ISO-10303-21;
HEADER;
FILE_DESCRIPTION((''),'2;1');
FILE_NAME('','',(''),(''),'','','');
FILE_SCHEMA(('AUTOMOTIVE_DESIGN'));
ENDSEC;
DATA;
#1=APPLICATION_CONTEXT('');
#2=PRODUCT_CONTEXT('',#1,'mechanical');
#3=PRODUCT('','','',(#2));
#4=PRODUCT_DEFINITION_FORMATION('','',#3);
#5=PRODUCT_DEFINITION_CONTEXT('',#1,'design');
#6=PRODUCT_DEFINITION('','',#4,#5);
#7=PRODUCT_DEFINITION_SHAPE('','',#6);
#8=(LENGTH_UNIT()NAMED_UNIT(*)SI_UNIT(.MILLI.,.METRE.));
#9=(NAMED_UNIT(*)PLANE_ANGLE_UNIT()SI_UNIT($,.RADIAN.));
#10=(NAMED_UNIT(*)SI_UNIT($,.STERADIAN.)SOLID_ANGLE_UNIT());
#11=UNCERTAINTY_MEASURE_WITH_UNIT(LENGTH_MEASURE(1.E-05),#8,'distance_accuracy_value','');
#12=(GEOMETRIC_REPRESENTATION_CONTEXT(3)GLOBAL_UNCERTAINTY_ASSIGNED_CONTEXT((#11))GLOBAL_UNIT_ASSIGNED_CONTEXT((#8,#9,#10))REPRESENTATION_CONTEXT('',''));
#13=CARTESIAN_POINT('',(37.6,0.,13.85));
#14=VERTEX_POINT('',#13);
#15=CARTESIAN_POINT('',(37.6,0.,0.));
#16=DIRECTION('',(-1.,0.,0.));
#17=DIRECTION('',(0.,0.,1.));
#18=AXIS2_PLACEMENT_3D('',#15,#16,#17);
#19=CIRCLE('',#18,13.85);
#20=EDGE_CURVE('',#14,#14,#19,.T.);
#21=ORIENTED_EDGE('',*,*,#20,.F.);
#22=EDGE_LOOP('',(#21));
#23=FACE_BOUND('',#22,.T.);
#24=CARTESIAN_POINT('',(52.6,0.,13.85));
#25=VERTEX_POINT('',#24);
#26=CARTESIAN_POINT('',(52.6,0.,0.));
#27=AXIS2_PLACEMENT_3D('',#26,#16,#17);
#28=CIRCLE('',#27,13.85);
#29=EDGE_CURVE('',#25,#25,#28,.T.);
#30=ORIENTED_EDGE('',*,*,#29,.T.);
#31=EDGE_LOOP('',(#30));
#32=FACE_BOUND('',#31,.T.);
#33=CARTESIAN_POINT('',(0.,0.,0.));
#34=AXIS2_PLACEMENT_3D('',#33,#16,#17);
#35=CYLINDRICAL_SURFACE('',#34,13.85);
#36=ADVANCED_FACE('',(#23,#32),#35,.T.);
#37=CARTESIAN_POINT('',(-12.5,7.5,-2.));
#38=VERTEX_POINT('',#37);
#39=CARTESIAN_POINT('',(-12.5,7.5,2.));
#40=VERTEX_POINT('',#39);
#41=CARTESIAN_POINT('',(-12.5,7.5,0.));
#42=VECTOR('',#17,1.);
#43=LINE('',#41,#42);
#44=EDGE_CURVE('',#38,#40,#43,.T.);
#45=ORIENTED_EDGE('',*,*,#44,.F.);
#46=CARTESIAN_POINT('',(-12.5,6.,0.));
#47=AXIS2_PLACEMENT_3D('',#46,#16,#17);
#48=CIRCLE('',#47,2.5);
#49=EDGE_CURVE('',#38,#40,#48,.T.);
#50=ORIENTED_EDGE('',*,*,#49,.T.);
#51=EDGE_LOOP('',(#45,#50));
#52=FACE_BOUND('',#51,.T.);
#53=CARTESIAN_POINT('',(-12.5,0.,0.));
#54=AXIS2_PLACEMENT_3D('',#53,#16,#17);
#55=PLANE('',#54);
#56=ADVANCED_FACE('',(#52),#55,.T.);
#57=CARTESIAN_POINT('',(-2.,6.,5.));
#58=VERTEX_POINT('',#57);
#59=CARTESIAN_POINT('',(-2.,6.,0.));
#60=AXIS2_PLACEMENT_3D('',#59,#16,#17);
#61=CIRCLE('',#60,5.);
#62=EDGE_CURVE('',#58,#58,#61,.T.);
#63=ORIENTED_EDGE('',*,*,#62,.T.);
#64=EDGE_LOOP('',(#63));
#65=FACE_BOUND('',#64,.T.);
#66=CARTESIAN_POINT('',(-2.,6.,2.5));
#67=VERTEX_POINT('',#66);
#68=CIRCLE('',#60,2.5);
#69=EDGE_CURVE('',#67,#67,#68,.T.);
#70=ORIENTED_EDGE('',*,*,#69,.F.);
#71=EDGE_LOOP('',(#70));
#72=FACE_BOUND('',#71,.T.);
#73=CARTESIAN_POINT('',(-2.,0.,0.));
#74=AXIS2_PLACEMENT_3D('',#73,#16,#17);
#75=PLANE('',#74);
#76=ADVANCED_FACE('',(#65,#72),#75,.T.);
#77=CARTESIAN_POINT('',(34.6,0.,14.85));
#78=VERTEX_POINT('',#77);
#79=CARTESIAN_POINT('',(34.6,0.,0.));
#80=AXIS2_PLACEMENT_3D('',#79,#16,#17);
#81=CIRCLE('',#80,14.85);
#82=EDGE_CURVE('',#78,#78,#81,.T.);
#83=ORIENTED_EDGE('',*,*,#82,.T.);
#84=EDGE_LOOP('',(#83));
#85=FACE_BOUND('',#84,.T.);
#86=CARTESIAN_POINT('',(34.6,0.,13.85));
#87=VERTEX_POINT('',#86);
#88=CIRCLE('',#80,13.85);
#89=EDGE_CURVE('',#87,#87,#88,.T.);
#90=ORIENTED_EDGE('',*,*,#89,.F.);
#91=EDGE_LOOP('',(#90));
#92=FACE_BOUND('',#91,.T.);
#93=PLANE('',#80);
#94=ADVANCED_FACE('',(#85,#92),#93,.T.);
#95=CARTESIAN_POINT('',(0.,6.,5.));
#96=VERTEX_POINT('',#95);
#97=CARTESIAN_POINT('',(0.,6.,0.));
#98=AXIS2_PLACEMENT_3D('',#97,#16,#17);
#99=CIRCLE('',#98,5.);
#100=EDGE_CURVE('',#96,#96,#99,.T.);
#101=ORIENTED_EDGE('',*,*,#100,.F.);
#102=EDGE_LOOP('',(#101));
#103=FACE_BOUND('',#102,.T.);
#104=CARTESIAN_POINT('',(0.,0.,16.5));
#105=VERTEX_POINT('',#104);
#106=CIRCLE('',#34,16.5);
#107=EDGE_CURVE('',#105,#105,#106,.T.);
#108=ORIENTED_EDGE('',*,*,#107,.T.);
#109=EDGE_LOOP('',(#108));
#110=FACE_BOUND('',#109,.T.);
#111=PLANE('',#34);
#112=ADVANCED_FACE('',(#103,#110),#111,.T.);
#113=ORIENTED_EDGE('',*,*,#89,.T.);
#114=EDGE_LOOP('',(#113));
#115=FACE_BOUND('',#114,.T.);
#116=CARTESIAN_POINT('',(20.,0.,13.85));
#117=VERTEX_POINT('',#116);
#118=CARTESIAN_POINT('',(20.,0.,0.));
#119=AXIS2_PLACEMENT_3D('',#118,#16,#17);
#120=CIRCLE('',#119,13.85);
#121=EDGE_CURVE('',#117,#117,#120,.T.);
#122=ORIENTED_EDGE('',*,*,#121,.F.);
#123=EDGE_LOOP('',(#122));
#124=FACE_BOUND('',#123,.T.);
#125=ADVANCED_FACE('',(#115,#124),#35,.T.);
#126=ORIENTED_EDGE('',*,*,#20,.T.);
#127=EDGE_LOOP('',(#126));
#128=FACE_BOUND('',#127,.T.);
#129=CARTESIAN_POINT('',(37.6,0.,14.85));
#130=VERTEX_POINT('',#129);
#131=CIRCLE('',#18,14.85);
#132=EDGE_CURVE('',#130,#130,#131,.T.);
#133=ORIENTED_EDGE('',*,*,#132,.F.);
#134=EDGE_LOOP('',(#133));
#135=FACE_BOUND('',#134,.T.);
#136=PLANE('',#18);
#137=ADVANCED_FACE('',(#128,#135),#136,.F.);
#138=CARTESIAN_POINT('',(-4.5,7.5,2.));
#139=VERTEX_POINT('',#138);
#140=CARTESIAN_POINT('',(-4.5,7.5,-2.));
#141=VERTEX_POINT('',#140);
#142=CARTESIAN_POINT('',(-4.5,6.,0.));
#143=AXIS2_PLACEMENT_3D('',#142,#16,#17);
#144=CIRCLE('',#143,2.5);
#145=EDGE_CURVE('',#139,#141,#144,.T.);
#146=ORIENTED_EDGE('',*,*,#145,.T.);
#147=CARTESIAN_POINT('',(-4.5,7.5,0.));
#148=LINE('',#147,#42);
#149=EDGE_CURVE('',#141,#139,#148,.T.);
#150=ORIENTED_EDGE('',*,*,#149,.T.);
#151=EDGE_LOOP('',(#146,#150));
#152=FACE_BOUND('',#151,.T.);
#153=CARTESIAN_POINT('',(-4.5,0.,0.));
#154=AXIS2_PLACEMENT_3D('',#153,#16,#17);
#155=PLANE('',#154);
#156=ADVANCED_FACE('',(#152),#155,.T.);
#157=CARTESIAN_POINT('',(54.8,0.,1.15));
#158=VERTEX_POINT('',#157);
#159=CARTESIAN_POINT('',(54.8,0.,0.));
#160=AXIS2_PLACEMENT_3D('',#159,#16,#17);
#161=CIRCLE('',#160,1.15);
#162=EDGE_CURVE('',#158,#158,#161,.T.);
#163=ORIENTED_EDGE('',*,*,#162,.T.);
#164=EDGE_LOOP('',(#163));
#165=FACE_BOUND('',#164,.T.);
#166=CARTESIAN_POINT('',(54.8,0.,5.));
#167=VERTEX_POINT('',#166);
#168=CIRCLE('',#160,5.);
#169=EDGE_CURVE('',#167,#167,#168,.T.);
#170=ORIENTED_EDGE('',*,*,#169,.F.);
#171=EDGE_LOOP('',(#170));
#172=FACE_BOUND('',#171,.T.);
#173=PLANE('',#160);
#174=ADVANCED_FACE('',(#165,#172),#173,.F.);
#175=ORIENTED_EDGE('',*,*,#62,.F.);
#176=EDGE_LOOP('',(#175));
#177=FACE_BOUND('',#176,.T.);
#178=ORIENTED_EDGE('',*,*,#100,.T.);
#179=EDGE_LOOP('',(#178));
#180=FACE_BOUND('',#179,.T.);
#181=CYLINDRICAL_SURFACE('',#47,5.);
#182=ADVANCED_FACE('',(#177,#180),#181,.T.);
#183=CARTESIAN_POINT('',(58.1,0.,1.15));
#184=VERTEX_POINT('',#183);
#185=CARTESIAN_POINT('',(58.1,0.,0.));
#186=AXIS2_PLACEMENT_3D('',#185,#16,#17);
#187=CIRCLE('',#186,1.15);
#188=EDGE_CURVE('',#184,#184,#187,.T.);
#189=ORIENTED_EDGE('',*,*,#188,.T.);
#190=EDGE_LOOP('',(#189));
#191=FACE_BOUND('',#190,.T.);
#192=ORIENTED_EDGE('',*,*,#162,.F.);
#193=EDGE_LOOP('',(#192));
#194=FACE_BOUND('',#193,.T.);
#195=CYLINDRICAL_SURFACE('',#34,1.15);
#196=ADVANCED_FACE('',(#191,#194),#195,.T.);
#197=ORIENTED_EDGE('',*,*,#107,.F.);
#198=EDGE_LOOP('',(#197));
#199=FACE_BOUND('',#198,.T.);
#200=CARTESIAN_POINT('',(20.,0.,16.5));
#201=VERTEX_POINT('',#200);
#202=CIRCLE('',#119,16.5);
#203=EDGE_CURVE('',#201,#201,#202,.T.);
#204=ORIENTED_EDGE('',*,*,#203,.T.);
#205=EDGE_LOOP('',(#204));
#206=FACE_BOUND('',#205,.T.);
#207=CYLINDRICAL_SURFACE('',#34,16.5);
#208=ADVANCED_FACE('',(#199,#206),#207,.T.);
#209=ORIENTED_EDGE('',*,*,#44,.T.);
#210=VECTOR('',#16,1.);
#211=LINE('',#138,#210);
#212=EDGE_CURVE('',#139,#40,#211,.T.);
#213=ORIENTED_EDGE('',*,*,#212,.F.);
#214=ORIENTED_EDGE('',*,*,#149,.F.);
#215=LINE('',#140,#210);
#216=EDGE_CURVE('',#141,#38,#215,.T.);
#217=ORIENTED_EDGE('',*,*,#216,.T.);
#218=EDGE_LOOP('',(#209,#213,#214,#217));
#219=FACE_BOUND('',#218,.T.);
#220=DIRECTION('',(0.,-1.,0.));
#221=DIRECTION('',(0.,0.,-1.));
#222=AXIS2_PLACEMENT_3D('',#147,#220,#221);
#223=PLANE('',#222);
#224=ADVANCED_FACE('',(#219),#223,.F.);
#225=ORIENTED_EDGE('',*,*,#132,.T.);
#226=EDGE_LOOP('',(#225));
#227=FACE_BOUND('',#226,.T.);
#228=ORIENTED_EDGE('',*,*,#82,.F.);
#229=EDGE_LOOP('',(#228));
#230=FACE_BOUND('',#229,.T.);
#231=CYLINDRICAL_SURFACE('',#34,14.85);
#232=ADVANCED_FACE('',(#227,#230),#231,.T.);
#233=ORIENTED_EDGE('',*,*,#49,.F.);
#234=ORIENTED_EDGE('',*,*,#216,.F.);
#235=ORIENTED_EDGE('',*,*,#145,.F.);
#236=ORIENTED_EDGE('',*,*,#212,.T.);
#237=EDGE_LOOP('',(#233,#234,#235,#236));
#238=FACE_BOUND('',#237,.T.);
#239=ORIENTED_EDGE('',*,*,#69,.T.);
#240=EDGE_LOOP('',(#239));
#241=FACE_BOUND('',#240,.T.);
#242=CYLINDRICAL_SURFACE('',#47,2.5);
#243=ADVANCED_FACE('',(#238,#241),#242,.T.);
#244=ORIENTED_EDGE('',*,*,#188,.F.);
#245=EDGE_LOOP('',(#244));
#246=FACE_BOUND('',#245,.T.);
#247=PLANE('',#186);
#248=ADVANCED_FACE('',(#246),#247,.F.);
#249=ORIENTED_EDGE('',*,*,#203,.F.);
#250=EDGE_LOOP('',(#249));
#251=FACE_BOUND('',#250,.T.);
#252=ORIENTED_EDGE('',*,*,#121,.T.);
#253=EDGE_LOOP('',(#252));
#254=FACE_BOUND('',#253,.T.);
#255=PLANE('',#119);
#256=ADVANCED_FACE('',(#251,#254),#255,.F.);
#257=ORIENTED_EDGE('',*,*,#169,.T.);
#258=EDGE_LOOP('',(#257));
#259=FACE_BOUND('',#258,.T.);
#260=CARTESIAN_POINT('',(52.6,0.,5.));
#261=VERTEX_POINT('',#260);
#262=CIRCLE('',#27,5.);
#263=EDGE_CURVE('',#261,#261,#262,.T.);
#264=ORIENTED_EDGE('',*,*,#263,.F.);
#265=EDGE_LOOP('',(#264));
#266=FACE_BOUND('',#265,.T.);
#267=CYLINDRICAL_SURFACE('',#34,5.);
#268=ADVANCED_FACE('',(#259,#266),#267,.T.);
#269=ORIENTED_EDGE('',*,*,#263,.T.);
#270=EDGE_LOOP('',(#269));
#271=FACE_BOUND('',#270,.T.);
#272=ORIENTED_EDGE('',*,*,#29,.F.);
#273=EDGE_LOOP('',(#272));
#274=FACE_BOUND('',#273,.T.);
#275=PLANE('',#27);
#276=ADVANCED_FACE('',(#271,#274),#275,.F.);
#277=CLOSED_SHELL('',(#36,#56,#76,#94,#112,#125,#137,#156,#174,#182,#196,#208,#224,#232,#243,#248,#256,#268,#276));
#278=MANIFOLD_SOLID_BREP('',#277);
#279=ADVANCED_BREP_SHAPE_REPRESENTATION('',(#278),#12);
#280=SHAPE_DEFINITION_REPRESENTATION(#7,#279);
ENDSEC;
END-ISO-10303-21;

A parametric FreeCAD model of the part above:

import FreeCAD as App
import Part
import Sketcher
Q = App.Units.Quantity


def add_polygon(sketch, points):
    """Adds a closed chain of lines whose ends are joined by coincident constraints."""
    first, n = sketch.GeometryCount, len(points)
    for a, b in zip(points, points[1:] + points[:1]):
        sketch.addGeometry(Part.LineSegment(App.Vector(*a, 0), App.Vector(*b, 0)), False)
    for i in range(n):
        sketch.addConstraint(Sketcher.Constraint("Coincident", first + i, 2, first + (i + 1) % n, 1))

doc = App.newDocument("Part")
body = doc.addObject("PartDesign::Body", "Body")

# Sketch on XY plane
sketch1 = doc.addObject("Sketcher::SketchObject", "Sketch")
body.addObject(sketch1)
sketch1.AttachmentSupport = (doc.XY_Plane, [""])
sketch1.MapMode = "FlatFace"
add_polygon(sketch1, [(0, 16.5), (0, 0), (58.1, 0), (58.1, 1.15), (54.8, 1.15), (54.8, 5), (52.6, 5), (52.6, 13.85), (37.6, 13.85), (37.6, 14.85), (34.6, 14.85), (34.6, 13.85), (20, 13.85), (20, 16.5)])  # lines 0-13
sketch1.addConstraint([
    Sketcher.Constraint("Vertical", 0),
    Sketcher.Constraint("Horizontal", 1),
    Sketcher.Constraint("Vertical", 2),
    Sketcher.Constraint("Horizontal", 3),
    Sketcher.Constraint("Vertical", 4),
    Sketcher.Constraint("Horizontal", 5),
    Sketcher.Constraint("Vertical", 6),
    Sketcher.Constraint("Horizontal", 7),
    Sketcher.Constraint("Vertical", 8),
    Sketcher.Constraint("Horizontal", 9),
    Sketcher.Constraint("Vertical", 10),
    Sketcher.Constraint("Horizontal", 11),
    Sketcher.Constraint("Vertical", 12),
    Sketcher.Constraint("Horizontal", 13),
    Sketcher.Constraint("Coincident", 0, 2, -1, 1),
    Sketcher.Constraint("Horizontal", 7, 2, 10, 2),
    Sketcher.Constraint("DistanceX", 7, 2, 7, 1, Q("15 mm")),
    Sketcher.Constraint("DistanceX", 9, 2, 9, 1, Q("3 mm")),
    Sketcher.Constraint("DistanceX", 13, 2, 13, 1, Q("20 mm")),
    Sketcher.Constraint("DistanceY", 8, 1, 8, 2, Q("1 mm")),
    Sketcher.Constraint("DistanceX", 1, 1, 1, 2, Q("58.1 mm")),
    Sketcher.Constraint("DistanceX", 3, 2, 3, 1, Q("3.3 mm")),
    Sketcher.Constraint("DistanceX", 5, 2, 5, 1, Q("2.2 mm")),
    Sketcher.Constraint("DistanceY", 0, 2, 0, 1, Q("16.5 mm")),
    Sketcher.Constraint("DistanceY", -1, 1, 4, 2, Q("5 mm")),
    Sketcher.Constraint("DistanceY", 2, 1, 2, 2, Q("1.15 mm")),
    Sketcher.Constraint("DistanceY", 6, 1, 6, 2, Q("8.85 mm")),
])
revolution = doc.addObject("PartDesign::Revolution", "Revolution")
body.addObject(revolution)
revolution.Profile = sketch1
revolution.ReferenceAxis = (sketch1, ["H_Axis"])
revolution.Angle = 360

# Sketch on XY plane
sketch2 = doc.addObject("Sketcher::SketchObject", "Sketch001")
body.addObject(sketch2)
sketch2.AttachmentSupport = (doc.XY_Plane, [""])
sketch2.MapMode = "FlatFace"
add_polygon(sketch2, [(-12.5, 8.5), (-12.5, 6), (0, 6), (0, 11), (-2, 11), (-2, 8.5)])  # lines 0-5
sketch2.addGeometry(Part.LineSegment(App.Vector(-12.5, 6, 0), App.Vector(0, 6, 0)), True)  # axis
sketch2.addConstraint([
    Sketcher.Constraint("Vertical", 0),
    Sketcher.Constraint("Horizontal", 1),
    Sketcher.Constraint("Vertical", 2),
    Sketcher.Constraint("Horizontal", 3),
    Sketcher.Constraint("Vertical", 4),
    Sketcher.Constraint("Horizontal", 5),
    Sketcher.Constraint("Horizontal", 6),
    Sketcher.Constraint("Coincident", 6, 1, 0, 2),
    Sketcher.Constraint("PointOnObject", 1, 2, -2),
    Sketcher.Constraint("PointOnObject", 6, 2, -2),
    Sketcher.Constraint("Equal", 0, 4),
    Sketcher.Constraint("DistanceX", 3, 2, 3, 1, Q("2 mm")),
    Sketcher.Constraint("DistanceY", 2, 1, 2, 2, Q("5 mm")),
    Sketcher.Constraint("DistanceX", 1, 1, 1, 2, Q("12.5 mm")),
    Sketcher.Constraint("DistanceY", -1, 1, 0, 2, Q("6 mm")),
])
revolution2 = doc.addObject("PartDesign::Revolution", "Revolution001")
body.addObject(revolution2)
revolution2.Profile = sketch2
revolution2.ReferenceAxis = (sketch2, ["Axis0"])
revolution2.Angle = 360

# Sketch on YZ plane
sketch3 = doc.addObject("Sketcher::SketchObject", "Sketch002")
body.addObject(sketch3)
sketch3.AttachmentSupport = (doc.YZ_Plane, [""])
sketch3.MapMode = "FlatFace"
sketch3.AttachmentOffset = App.Placement(App.Vector(0, 0, -12.5), App.Rotation())
add_polygon(sketch3, [(7.5, -72.60528), (7.5, 72.60528), (148.710561, 72.60528), (148.710561, -72.60528)])  # lines 0-3
sketch3.addConstraint([
    Sketcher.Constraint("Vertical", 0),
    Sketcher.Constraint("Horizontal", 1),
    Sketcher.Constraint("Vertical", 2),
    Sketcher.Constraint("Horizontal", 3),
    Sketcher.Constraint("DistanceX", -1, 1, 0, 2, Q("7.5 mm")),
    Sketcher.Constraint("DistanceX", 1, 1, 1, 2, Q("141.210561 mm")),
    Sketcher.Constraint("DistanceY", 0, 1, 0, 2, Q("145.210561 mm")),
    Sketcher.Constraint("DistanceY", -1, 1, 0, 2, Q("72.60528 mm")),
])
pocket1 = doc.addObject("PartDesign::Pocket", "Pocket")
body.addObject(pocket1)
pocket1.Profile = sketch3
pocket1.Length = 8
pocket1.Reversed = True

doc.recompute()
